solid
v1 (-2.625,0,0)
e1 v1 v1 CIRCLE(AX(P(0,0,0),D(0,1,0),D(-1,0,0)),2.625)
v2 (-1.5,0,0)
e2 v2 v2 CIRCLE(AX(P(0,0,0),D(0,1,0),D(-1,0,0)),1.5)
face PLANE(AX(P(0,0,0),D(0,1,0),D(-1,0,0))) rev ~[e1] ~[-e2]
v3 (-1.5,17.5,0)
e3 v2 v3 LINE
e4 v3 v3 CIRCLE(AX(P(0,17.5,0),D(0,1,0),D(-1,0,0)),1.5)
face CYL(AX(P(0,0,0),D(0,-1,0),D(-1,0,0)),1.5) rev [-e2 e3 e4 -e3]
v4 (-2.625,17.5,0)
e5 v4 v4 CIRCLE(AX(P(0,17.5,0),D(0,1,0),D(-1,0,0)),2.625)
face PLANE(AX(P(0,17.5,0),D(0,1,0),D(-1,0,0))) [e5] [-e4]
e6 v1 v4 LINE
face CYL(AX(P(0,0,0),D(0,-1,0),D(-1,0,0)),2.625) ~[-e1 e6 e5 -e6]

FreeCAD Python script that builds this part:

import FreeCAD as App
import Part
import Sketcher

V = App.Vector

doc = App.newDocument("Part")
params = doc.addObject("Spreadsheet::Sheet", "Params")
for row, (alias, value) in enumerate([
    ("sketch1_diameter", "3 mm"),
    ("sketch1_diameter2", "5.25 mm"),
    ("pad1_length", "17.5 mm"),
], start=1):
    params.set(f"A{row}", alias)
    params.set(f"B{row}", "=" + value)
    params.setAlias(f"B{row}", alias)

body = doc.addObject("PartDesign::Body", "Body")

# Sketch on XZ plane
sketch1 = body.newObject("Sketcher::SketchObject", "Sketch")
sketch1.AttachmentSupport = (doc.getObject("XZ_Plane"), [""])
sketch1.MapMode = "FlatFace"
sketch1.addGeometry([
    Part.Circle(V(0, 0, 0), V(0, 0, 1), 2.625),
    Part.Circle(V(0, 0, 0), V(0, 0, 1), 1.5),
], False)
sketch1.addConstraint([
    Sketcher.Constraint("Coincident", 0, 3, -1, 1),
    Sketcher.Constraint("Coincident", 1, 3, -1, 1),
    Sketcher.Constraint("Diameter", 1, 3.0),
    Sketcher.Constraint("Diameter", 0, 5.25),
])
sketch1.setExpression("Constraints[2]", "Params.sketch1_diameter")
sketch1.setExpression("Constraints[3]", "Params.sketch1_diameter2")
pad1 = body.newObject("PartDesign::Pad", "Pad")
pad1.Profile = sketch1
pad1.setExpression("Length", "Params.pad1_length")
pad1.Reversed = True

doc.recompute()
